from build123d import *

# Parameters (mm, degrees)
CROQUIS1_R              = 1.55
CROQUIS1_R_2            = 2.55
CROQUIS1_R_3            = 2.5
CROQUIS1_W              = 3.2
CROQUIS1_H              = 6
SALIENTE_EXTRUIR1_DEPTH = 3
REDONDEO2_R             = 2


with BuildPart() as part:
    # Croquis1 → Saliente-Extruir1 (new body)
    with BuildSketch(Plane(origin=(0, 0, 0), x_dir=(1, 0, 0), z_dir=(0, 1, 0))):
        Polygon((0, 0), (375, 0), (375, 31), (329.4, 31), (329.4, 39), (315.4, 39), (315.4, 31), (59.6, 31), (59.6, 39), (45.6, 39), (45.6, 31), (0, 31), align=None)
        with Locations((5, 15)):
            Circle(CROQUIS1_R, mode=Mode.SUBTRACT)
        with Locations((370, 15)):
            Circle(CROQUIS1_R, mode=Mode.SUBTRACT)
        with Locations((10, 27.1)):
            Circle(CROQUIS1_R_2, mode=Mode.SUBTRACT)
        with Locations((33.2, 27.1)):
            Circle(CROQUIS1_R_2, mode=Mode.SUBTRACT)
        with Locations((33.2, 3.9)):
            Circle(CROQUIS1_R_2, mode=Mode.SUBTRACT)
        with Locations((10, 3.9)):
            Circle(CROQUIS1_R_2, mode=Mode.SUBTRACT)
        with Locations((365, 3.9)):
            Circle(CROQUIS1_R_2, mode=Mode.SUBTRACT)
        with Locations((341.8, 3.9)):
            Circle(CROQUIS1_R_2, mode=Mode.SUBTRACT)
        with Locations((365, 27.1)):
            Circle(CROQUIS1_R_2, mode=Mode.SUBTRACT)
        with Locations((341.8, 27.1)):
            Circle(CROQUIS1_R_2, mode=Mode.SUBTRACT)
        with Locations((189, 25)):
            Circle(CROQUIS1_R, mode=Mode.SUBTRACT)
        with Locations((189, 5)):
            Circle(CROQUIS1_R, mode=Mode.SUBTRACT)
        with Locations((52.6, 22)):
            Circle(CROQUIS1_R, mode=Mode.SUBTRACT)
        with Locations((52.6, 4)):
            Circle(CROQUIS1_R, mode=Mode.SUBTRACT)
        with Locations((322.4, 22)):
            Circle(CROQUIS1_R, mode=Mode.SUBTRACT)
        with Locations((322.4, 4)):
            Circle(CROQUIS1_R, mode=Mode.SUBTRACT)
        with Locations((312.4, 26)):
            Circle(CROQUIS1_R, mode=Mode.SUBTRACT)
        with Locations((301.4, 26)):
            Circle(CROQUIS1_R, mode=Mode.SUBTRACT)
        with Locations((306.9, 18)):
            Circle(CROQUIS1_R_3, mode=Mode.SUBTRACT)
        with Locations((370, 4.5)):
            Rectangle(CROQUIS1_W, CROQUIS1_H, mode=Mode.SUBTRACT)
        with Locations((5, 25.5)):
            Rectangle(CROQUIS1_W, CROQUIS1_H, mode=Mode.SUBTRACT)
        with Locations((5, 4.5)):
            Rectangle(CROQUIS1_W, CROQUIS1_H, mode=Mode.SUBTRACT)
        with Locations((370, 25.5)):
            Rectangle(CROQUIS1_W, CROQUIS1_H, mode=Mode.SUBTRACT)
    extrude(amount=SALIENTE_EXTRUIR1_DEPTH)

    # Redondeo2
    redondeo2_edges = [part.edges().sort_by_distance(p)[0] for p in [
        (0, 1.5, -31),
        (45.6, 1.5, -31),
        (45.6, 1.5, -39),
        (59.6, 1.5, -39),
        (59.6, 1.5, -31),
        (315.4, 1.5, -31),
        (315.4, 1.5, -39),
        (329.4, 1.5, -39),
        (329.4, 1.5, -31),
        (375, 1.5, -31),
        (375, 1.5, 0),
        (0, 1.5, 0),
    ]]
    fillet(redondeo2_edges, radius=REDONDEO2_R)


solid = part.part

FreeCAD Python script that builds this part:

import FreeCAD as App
import Part
import Sketcher

V = App.Vector
Q = App.Units.Quantity


def edges_at(feature, points):
    """Names of the edges that pass closest to the given points."""
    edges = feature.Shape.Edges
    near = lambda p: min(range(len(edges)), key=lambda i: edges[i].distToShape(Part.Vertex(*p))[0])
    return sorted({f"Edge{near(p) + 1}" for p in points})

doc = App.newDocument("Part")
body = doc.addObject("PartDesign::Body", "Body")

sketch1 = body.newObject("Sketcher::SketchObject", "Sketch")
sketch1.AttachmentSupport = (doc.getObject("XZ_Plane"), [""])
sketch1.MapMode = "FlatFace"
sketch1.addGeometry([
    Part.LineSegment(V(0, 0, 0), V(375, 0, 0)),
    Part.LineSegment(V(375, 0, 0), V(375, -31, 0)),
    Part.LineSegment(V(375, -31, 0), V(329.4, -31, 0)),
    Part.LineSegment(V(329.4, -31, 0), V(329.4, -39, 0)),
    Part.LineSegment(V(329.4, -39, 0), V(315.4, -39, 0)),
    Part.LineSegment(V(315.4, -39, 0), V(315.4, -31, 0)),
    Part.LineSegment(V(315.4, -31, 0), V(59.6, -31, 0)),
    Part.LineSegment(V(59.6, -31, 0), V(59.6, -39, 0)),
    Part.LineSegment(V(59.6, -39, 0), V(45.6, -39, 0)),
    Part.LineSegment(V(45.6, -39, 0), V(45.6, -31, 0)),
    Part.LineSegment(V(45.6, -31, 0), V(0, -31, 0)),
    Part.LineSegment(V(0, -31, 0), V(0, 0, 0)),
    Part.Circle(V(10, -3.9, 0), V(0, 0, 1), 2.55),
    Part.LineSegment(V(6.6, -1.5, 0), V(3.4, -1.5, 0)),
    Part.LineSegment(V(3.4, -1.5, 0), V(3.4, -7.5, 0)),
    Part.LineSegment(V(3.4, -7.5, 0), V(6.6, -7.5, 0)),
    Part.LineSegment(V(6.6, -7.5, 0), V(6.6, -1.5, 0)),
    Part.Circle(V(33.2, -3.9, 0), V(0, 0, 1), 2.55),
    Part.Circle(V(52.6, -4, 0), V(0, 0, 1), 1.55),
    Part.Circle(V(5, -15, 0), V(0, 0, 1), 1.55),
    Part.Circle(V(189, -5, 0), V(0, 0, 1), 1.55),
    Part.Circle(V(322.4, -4, 0), V(0, 0, 1), 1.55),
    Part.Circle(V(341.8, -3.9, 0), V(0, 0, 1), 2.55),
    Part.Circle(V(365, -3.9, 0), V(0, 0, 1), 2.55),
    Part.LineSegment(V(371.6, -1.5, 0), V(368.4, -1.5, 0)),
    Part.LineSegment(V(368.4, -1.5, 0), V(368.4, -7.5, 0)),
    Part.LineSegment(V(368.4, -7.5, 0), V(371.6, -7.5, 0)),
    Part.LineSegment(V(371.6, -7.5, 0), V(371.6, -1.5, 0)),
    Part.Circle(V(370, -15, 0), V(0, 0, 1), 1.55),
    Part.Circle(V(52.6, -22, 0), V(0, 0, 1), 1.55),
    Part.LineSegment(V(6.6, -22.5, 0), V(3.4, -22.5, 0)),
    Part.LineSegment(V(3.4, -22.5, 0), V(3.4, -28.5, 0)),
    Part.LineSegment(V(3.4, -28.5, 0), V(6.6, -28.5, 0)),
    Part.LineSegment(V(6.6, -28.5, 0), V(6.6, -22.5, 0)),
    Part.Circle(V(10, -27.1, 0), V(0, 0, 1), 2.55),
    Part.Circle(V(33.2, -27.1, 0), V(0, 0, 1), 2.55),
    Part.Circle(V(306.9, -18, 0), V(0, 0, 1), 2.5),
    Part.Circle(V(322.4, -22, 0), V(0, 0, 1), 1.55),
    Part.Circle(V(189, -25, 0), V(0, 0, 1), 1.55),
    Part.Circle(V(301.4, -26, 0), V(0, 0, 1), 1.55),
    Part.Circle(V(312.4, -26, 0), V(0, 0, 1), 1.55),
    Part.LineSegment(V(371.6, -22.5, 0), V(368.4, -22.5, 0)),
    Part.LineSegment(V(368.4, -22.5, 0), V(368.4, -28.5, 0)),
    Part.LineSegment(V(368.4, -28.5, 0), V(371.6, -28.5, 0)),
    Part.LineSegment(V(371.6, -28.5, 0), V(371.6, -22.5, 0)),
    Part.Circle(V(341.8, -27.1, 0), V(0, 0, 1), 2.55),
    Part.Circle(V(365, -27.1, 0), V(0, 0, 1), 2.55),
], False)
sketch1.addConstraint([
    Sketcher.Constraint("Coincident", 0, 2, 1, 1),
    Sketcher.Constraint("Coincident", 1, 2, 2, 1),
    Sketcher.Constraint("Coincident", 2, 2, 3, 1),
    Sketcher.Constraint("Coincident", 3, 2, 4, 1),
    Sketcher.Constraint("Coincident", 4, 2, 5, 1),
    Sketcher.Constraint("Coincident", 5, 2, 6, 1),
    Sketcher.Constraint("Coincident", 6, 2, 7, 1),
    Sketcher.Constraint("Coincident", 7, 2, 8, 1),
    Sketcher.Constraint("Coincident", 8, 2, 9, 1),
    Sketcher.Constraint("Coincident", 9, 2, 10, 1),
    Sketcher.Constraint("Coincident", 10, 2, 11, 1),
    Sketcher.Constraint("Coincident", 11, 2, 0, 1),
    Sketcher.Constraint("Coincident", 13, 2, 14, 1),
    Sketcher.Constraint("Coincident", 14, 2, 15, 1),
    Sketcher.Constraint("Coincident", 15, 2, 16, 1),
    Sketcher.Constraint("Coincident", 16, 2, 13, 1),
    Sketcher.Constraint("Coincident", 24, 2, 25, 1),
    Sketcher.Constraint("Coincident", 25, 2, 26, 1),
    Sketcher.Constraint("Coincident", 26, 2, 27, 1),
    Sketcher.Constraint("Coincident", 27, 2, 24, 1),
    Sketcher.Constraint("Coincident", 30, 2, 31, 1),
    Sketcher.Constraint("Coincident", 31, 2, 32, 1),
    Sketcher.Constraint("Coincident", 32, 2, 33, 1),
    Sketcher.Constraint("Coincident", 33, 2, 30, 1),
    Sketcher.Constraint("Coincident", 41, 2, 42, 1),
    Sketcher.Constraint("Coincident", 42, 2, 43, 1),
    Sketcher.Constraint("Coincident", 43, 2, 44, 1),
    Sketcher.Constraint("Coincident", 44, 2, 41, 1),
    Sketcher.Constraint("Horizontal", 0),
    Sketcher.Constraint("Vertical", 1),
    Sketcher.Constraint("Horizontal", 2),
    Sketcher.Constraint("Vertical", 3),
    Sketcher.Constraint("Horizontal", 4),
    Sketcher.Constraint("Vertical", 5),
    Sketcher.Constraint("Horizontal", 6),
    Sketcher.Constraint("Vertical", 7),
    Sketcher.Constraint("Horizontal", 8),
    Sketcher.Constraint("Vertical", 9),
    Sketcher.Constraint("Horizontal", 10),
    Sketcher.Constraint("Vertical", 11),
    Sketcher.Constraint("Horizontal", 13),
    Sketcher.Constraint("Vertical", 14),
    Sketcher.Constraint("Horizontal", 15),
    Sketcher.Constraint("Vertical", 16),
    Sketcher.Constraint("Horizontal", 24),
    Sketcher.Constraint("Vertical", 25),
    Sketcher.Constraint("Horizontal", 26),
    Sketcher.Constraint("Vertical", 27),
    Sketcher.Constraint("Horizontal", 30),
    Sketcher.Constraint("Vertical", 31),
    Sketcher.Constraint("Horizontal", 32),
    Sketcher.Constraint("Vertical", 33),
    Sketcher.Constraint("Horizontal", 41),
    Sketcher.Constraint("Vertical", 42),
    Sketcher.Constraint("Horizontal", 43),
    Sketcher.Constraint("Vertical", 44),
    Sketcher.Constraint("Coincident", 11, 2, -1, 1),
    Sketcher.Constraint("Equal", 12, 17),
    Sketcher.Constraint("Equal", 18, 19),
    Sketcher.Constraint("Equal", 19, 20),
    Sketcher.Constraint("Equal", 20, 21),
    Sketcher.Constraint("Equal", 17, 22),
    Sketcher.Constraint("Equal", 22, 23),
    Sketcher.Constraint("Equal", 21, 28),
    Sketcher.Constraint("Equal", 28, 29),
    Sketcher.Constraint("Equal", 23, 34),
    Sketcher.Constraint("Equal", 34, 35),
    Sketcher.Constraint("Equal", 29, 37),
    Sketcher.Constraint("Equal", 37, 38),
    Sketcher.Constraint("Equal", 38, 39),
    Sketcher.Constraint("Equal", 39, 40),
    Sketcher.Constraint("Equal", 35, 45),
    Sketcher.Constraint("Equal", 45, 46),
    Sketcher.Constraint("Horizontal", 12, 3, 17, 3),
    Sketcher.Constraint("Horizontal", 18, 3, 21, 3),
    Sketcher.Constraint("Horizontal", 17, 3, 22, 3),
    Sketcher.Constraint("Horizontal", 22, 3, 23, 3),
    Sketcher.Constraint("Horizontal", 19, 3, 28, 3),
    Sketcher.Constraint("Horizontal", 34, 3, 35, 3),
    Sketcher.Constraint("Horizontal", 29, 3, 37, 3),
    Sketcher.Constraint("Horizontal", 39, 3, 40, 3),
    Sketcher.Constraint("Horizontal", 35, 3, 45, 3),
    Sketcher.Constraint("Horizontal", 45, 3, 46, 3),
    Sketcher.Constraint("Horizontal", 2, 2, 5, 2),
    Sketcher.Constraint("Horizontal", 4, 2, 7, 2),
    Sketcher.Constraint("Horizontal", 6, 2, 9, 2),
    Sketcher.Constraint("Horizontal", 16, 2, 24, 2),
    Sketcher.Constraint("Horizontal", 15, 2, 25, 2),
    Sketcher.Constraint("Horizontal", 33, 2, 41, 2),
    Sketcher.Constraint("Horizontal", 32, 2, 42, 2),
    Sketcher.Constraint("Vertical", 18, 3, 29, 3),
    Sketcher.Constraint("Vertical", 12, 3, 34, 3),
    Sketcher.Constraint("Vertical", 17, 3, 35, 3),
    Sketcher.Constraint("Vertical", 21, 3, 37, 3),
    Sketcher.Constraint("Vertical", 20, 3, 38, 3),
    Sketcher.Constraint("Vertical", 22, 3, 45, 3),
    Sketcher.Constraint("Vertical", 23, 3, 46, 3),
    Sketcher.Constraint("Vertical", 14, 2, 30, 2),
    Sketcher.Constraint("Vertical", 16, 2, 32, 2),
    Sketcher.Constraint("Vertical", 25, 2, 41, 2),
    Sketcher.Constraint("Vertical", 27, 2, 43, 2),
    Sketcher.Constraint("Equal", 4, 8),
    Sketcher.Constraint("Equal", 2, 10),
    Sketcher.Constraint("Equal", 15, 24),
    Sketcher.Constraint("Equal", 27, 31),
    Sketcher.Constraint("Diameter", 36, Q("5 mm")),
    Sketcher.Constraint("Diameter", 12, Q("5.1 mm")),
    Sketcher.Constraint("Diameter", 18, Q("3.1 mm")),
    Sketcher.Constraint("DistanceX", 0, 1, 0, 2, Q("375 mm")),
    Sketcher.Constraint("DistanceX", 4, 2, 4, 1, Q("14 mm")),
    Sketcher.Constraint("DistanceY", 1, 2, 1, 1, Q("31 mm")),
    Sketcher.Constraint("DistanceY", 3, 2, 3, 1, Q("8 mm")),
    Sketcher.Constraint("DistanceY", 14, 2, 14, 1, Q("6 mm")),
    Sketcher.Constraint("DistanceX", 2, 2, 2, 1, Q("45.6 mm")),
    Sketcher.Constraint("DistanceX", 13, 2, 13, 1, Q("3.2 mm")),
    Sketcher.Constraint("DistanceX", -1, 1, 12, 3, Q("10 mm")),
    Sketcher.Constraint("DistanceY", 18, 3, -1, 1, Q("4 mm")),
    Sketcher.Constraint("DistanceX", -1, 1, 19, 3, Q("5 mm")),
    Sketcher.Constraint("DistanceY", 19, 3, -1, 1, Q("15 mm")),
    Sketcher.Constraint("DistanceX", -1, 1, 20, 3, Q("189 mm")),
    Sketcher.Constraint("DistanceY", 20, 3, -1, 1, Q("5 mm")),
    Sketcher.Constraint("DistanceX", -1, 1, 23, 3, Q("365 mm")),
    Sketcher.Constraint("DistanceX", -1, 1, 28, 3, Q("370 mm")),
    Sketcher.Constraint("DistanceY", 29, 3, -1, 1, Q("22 mm")),
    Sketcher.Constraint("DistanceY", 36, 3, -1, 1, Q("18 mm")),
    Sketcher.Constraint("DistanceY", 38, 3, -1, 1, Q("25 mm")),
    Sketcher.Constraint("DistanceY", 39, 3, -1, 1, Q("26 mm")),
    Sketcher.Constraint("DistanceX", 39, 3, 37, 3, Q("21 mm")),
    Sketcher.Constraint("DistanceX", 40, 3, 37, 3, Q("10 mm")),
    Sketcher.Constraint("DistanceX", 37, 3, 2, 2, Q("7 mm")),
    Sketcher.Constraint("DistanceX", 29, 3, 6, 2, Q("7 mm")),
    Sketcher.Constraint("DistanceY", 30, 2, 14, 2, Q("15 mm")),
    Sketcher.Constraint("DistanceY", 12, 3, -1, 1, Q("3.9 mm")),
    Sketcher.Constraint("DistanceX", -1, 1, 17, 3, Q("33.2 mm")),
    Sketcher.Constraint("DistanceX", -1, 1, 22, 3, Q("341.8 mm")),
    Sketcher.Constraint("DistanceY", 34, 3, -1, 1, Q("27.1 mm")),
    Sketcher.Constraint("DistanceX", -1, 1, 36, 3, Q("306.9 mm")),
    Sketcher.Constraint("DistanceX", -1, 1, 13, 2, Q("3.4 mm")),
    Sketcher.Constraint("DistanceY", 13, 2, -1, 1, Q("1.5 mm")),
    Sketcher.Constraint("DistanceX", -1, 1, 24, 2, Q("368.4 mm")),
])
pad1 = body.newObject("PartDesign::Pad", "Pad")
pad1.Profile = sketch1
pad1.Length = 3
pad1.Reversed = True
doc.recompute()

fillet = body.newObject("PartDesign::Fillet", "Fillet")
fillet.Base = (pad1, edges_at(pad1, [
    (0, 1.5, -31),
    (45.6, 1.5, -31),
    (45.6, 1.5, -39),
    (59.6, 1.5, -39),
    (59.6, 1.5, -31),
    (315.4, 1.5, -31),
    (315.4, 1.5, -39),
    (329.4, 1.5, -39),
    (329.4, 1.5, -31),
    (375, 1.5, -31),
    (375, 1.5, 0),
    (0, 1.5, 0),
]))
fillet.Radius = 2

doc.recompute()
